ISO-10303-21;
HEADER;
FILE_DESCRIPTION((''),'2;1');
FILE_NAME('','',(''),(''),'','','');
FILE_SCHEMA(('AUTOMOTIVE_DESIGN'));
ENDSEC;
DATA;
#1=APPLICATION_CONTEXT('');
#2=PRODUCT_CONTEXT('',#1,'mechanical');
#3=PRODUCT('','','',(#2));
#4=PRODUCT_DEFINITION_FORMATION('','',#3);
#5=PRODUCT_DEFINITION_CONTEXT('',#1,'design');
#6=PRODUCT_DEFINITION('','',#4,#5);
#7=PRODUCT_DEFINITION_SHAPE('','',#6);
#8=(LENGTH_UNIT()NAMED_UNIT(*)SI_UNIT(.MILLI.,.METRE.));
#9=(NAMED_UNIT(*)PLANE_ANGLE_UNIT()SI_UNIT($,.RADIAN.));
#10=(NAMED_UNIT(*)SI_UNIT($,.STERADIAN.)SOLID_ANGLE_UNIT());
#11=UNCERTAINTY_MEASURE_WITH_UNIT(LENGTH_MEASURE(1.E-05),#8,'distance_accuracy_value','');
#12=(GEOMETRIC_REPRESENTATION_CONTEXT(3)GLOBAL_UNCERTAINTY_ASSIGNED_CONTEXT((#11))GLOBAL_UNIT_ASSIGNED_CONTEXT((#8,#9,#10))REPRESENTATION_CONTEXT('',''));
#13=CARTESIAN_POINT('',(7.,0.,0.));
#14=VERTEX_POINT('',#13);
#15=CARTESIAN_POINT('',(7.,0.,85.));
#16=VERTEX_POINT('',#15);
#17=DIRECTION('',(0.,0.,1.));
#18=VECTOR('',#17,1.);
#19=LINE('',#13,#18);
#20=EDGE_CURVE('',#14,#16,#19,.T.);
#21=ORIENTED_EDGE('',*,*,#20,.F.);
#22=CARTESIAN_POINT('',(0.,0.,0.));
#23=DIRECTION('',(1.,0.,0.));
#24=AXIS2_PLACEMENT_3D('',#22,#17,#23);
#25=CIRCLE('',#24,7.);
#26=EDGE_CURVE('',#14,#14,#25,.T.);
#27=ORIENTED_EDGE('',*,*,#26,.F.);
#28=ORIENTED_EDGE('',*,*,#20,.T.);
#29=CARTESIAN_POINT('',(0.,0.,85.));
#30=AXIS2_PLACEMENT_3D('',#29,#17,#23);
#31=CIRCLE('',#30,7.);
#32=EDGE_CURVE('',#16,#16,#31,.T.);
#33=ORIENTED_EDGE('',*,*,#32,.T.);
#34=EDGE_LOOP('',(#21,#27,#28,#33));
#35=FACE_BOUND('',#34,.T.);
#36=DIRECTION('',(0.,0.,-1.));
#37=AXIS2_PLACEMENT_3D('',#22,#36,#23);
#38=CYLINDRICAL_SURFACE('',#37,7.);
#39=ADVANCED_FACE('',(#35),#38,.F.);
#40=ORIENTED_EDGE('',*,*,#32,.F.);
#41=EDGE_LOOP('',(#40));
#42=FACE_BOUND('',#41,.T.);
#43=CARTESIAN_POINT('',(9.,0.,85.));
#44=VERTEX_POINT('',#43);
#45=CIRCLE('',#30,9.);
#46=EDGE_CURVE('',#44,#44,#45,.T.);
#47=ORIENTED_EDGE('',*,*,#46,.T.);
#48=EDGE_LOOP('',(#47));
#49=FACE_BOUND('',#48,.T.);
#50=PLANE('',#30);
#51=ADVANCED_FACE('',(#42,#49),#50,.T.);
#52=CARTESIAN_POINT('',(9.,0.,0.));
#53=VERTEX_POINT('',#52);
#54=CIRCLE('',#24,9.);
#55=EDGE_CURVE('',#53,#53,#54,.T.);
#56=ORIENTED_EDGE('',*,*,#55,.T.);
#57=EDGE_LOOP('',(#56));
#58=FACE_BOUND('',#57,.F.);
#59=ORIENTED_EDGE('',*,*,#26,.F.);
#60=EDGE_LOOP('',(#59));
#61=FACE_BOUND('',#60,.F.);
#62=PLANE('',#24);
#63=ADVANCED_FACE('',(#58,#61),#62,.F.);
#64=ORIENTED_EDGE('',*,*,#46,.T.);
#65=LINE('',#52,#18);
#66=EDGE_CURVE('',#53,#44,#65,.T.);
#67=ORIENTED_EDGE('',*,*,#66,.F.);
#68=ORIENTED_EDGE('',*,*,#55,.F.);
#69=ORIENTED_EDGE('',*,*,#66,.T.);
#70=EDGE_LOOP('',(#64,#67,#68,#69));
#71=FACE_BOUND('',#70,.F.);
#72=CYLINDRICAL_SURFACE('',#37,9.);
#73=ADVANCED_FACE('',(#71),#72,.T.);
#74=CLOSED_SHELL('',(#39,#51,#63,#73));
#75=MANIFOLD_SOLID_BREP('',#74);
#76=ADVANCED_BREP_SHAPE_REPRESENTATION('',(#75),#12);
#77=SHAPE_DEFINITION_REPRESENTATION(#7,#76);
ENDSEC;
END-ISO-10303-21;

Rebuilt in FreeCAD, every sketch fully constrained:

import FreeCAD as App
import Part
import Sketcher

doc = App.newDocument("Part")
params = doc.addObject("Spreadsheet::Sheet", "Params")
for row, (alias, value) in enumerate([
    ("sketch1_diameter", "18 mm"),
    ("sketch1_diameter2", "14 mm"),
    ("pad1_length", "85 mm"),
], start=1):
    params.set(f"A{row}", alias)
    params.set(f"B{row}", "=" + value)
    params.setAlias(f"B{row}", alias)

body = doc.addObject("PartDesign::Body", "Body")

sketch1 = doc.addObject("Sketcher::SketchObject", "Sketch")
body.addObject(sketch1)
sketch1.AttachmentSupport = (doc.XY_Plane, [""])
sketch1.MapMode = "FlatFace"
sketch1.addGeometry([
    Part.Circle(App.Vector(0, 0, 0), App.Vector(0, 0, 1), 9),
    Part.Circle(App.Vector(0, 0, 0), App.Vector(0, 0, 1), 7),
], False)
sketch1.addConstraint([
    Sketcher.Constraint("Coincident", 0, 3, -1, 1),
    Sketcher.Constraint("Coincident", 1, 3, -1, 1),
    Sketcher.Constraint("Diameter", 0, 18.0),
    Sketcher.Constraint("Diameter", 1, 14.0),
])
sketch1.setExpression("Constraints[2]", "Params.sketch1_diameter")
sketch1.setExpression("Constraints[3]", "Params.sketch1_diameter2")
pad1 = doc.addObject("PartDesign::Pad", "Pad")
body.addObject(pad1)
pad1.Profile = sketch1
pad1.setExpression("Length", "Params.pad1_length")

doc.recompute()
